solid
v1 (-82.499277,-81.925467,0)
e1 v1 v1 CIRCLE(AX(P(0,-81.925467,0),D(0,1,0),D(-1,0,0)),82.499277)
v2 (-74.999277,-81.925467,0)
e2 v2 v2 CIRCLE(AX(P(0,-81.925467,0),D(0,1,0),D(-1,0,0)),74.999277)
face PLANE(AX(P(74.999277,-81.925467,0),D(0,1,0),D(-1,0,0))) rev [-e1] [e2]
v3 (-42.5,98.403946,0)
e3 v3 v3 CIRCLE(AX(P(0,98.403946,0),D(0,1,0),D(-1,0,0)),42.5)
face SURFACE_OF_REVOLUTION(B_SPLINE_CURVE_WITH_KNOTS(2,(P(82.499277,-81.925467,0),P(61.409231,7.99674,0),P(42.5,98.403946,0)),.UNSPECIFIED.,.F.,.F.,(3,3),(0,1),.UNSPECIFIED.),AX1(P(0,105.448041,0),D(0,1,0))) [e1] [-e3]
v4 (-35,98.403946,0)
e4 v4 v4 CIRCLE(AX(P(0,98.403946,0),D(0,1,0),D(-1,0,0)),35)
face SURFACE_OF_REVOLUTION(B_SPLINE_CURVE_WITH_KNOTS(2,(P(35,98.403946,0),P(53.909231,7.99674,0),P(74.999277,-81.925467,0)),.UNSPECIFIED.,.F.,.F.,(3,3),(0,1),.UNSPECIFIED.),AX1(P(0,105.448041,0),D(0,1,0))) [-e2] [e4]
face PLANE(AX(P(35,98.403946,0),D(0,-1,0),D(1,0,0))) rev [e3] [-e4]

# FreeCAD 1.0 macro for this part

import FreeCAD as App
import Part
import Sketcher
from FreeCAD import Vector

doc = App.newDocument("Part")
body = doc.addObject("PartDesign::Body", "Body")

sketch1 = body.newObject("Sketcher::SketchObject", "Sketch")
sketch1.AttachmentSupport = (doc.getObject("XY_Plane"), [""])
sketch1.MapMode = "FlatFace"
sketch1.addGeometry(Part.LineSegment(Vector(42.5, 98.403946, 0), Vector(35, 98.403946, 0)), False)
sketch1.addGeometry(Part.BSplineCurve([Vector(35, 98.403946, 0), Vector(53.909231, 7.99674, 0), Vector(74.999277, -81.925467, 0)], [3, 3], [0, 1], False, 2, [1, 1, 1], False), False)
sketch1.addGeometry(Part.LineSegment(Vector(74.999277, -81.925467, 0), Vector(82.499277, -81.925467, 0)), False)
sketch1.addGeometry(Part.BSplineCurve([Vector(42.5, 98.403946, 0), Vector(61.409231, 7.99674, 0), Vector(82.499277, -81.925467, 0)], [3, 3], [0, 1], False, 2, [1, 1, 1], False), False)
sketch1.addConstraint(Sketcher.Constraint("Block", 1))
sketch1.addConstraint(Sketcher.Constraint("Block", 3))
sketch1.addConstraint(Sketcher.Constraint("Coincident", 0, 2, 1, 1))
sketch1.addConstraint(Sketcher.Constraint("Coincident", 1, 2, 2, 1))
sketch1.addConstraint(Sketcher.Constraint("Coincident", 2, 2, 3, 2))
sketch1.addConstraint(Sketcher.Constraint("Coincident", 3, 1, 0, 1))
revolution = body.newObject("PartDesign::Revolution", "Revolution")
revolution.Profile = sketch1
revolution.ReferenceAxis = (sketch1, ["V_Axis"])
revolution.Angle = 360

doc.recompute()
